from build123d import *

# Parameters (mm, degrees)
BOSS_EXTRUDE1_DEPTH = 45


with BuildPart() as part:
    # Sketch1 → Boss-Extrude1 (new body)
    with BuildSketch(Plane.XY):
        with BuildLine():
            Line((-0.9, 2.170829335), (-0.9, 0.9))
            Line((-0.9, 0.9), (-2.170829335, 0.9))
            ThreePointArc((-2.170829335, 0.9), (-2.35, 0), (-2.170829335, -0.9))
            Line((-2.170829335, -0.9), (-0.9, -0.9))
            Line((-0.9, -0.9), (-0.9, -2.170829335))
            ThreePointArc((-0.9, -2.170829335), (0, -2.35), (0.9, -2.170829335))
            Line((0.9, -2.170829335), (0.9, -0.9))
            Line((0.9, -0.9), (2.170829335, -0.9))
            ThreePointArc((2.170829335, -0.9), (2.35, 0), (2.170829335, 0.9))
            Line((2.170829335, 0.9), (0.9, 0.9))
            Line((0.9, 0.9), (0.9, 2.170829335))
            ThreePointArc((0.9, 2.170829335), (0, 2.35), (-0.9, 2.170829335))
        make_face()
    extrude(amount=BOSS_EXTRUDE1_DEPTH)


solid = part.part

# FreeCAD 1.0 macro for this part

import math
import FreeCAD as App
import Part
import Sketcher
Q = App.Units.Quantity

doc = App.newDocument("Part")
body = doc.addObject("PartDesign::Body", "Body")

sketch1 = body.newObject("Sketcher::SketchObject", "Sketch")
sketch1.AttachmentSupport = (doc.getObject("XY_Plane"), [""])
sketch1.MapMode = "FlatFace"
sketch1.addGeometry(Part.LineSegment(App.Vector(-0.9, 2.2, 0), App.Vector(-0.9, 0.9, 0)), False)
sketch1.addGeometry(Part.LineSegment(App.Vector(-0.9, 0.9, 0), App.Vector(-2.2, 0.9, 0)), False)
sketch1.addGeometry(Part.ArcOfCircle(Part.Circle(App.Vector(0, 0, 0), App.Vector(0, 0, 1), 2.4), math.radians(157), math.radians(203)), False)
sketch1.addGeometry(Part.LineSegment(App.Vector(-2.2, -0.9, 0), App.Vector(-0.9, -0.9, 0)), False)
sketch1.addGeometry(Part.LineSegment(App.Vector(-0.9, -0.9, 0), App.Vector(-0.9, -2.2, 0)), False)
sketch1.addGeometry(Part.ArcOfCircle(Part.Circle(App.Vector(0, 0, 0), App.Vector(0, 0, 1), 2.4), math.radians(-113), math.radians(-67)), False)
sketch1.addGeometry(Part.LineSegment(App.Vector(0.9, -2.2, 0), App.Vector(0.9, -0.9, 0)), False)
sketch1.addGeometry(Part.LineSegment(App.Vector(0.9, -0.9, 0), App.Vector(2.2, -0.9, 0)), False)
sketch1.addGeometry(Part.ArcOfCircle(Part.Circle(App.Vector(0, 0, 0), App.Vector(0, 0, 1), 2.4), math.radians(-23), math.radians(23)), False)
sketch1.addGeometry(Part.LineSegment(App.Vector(2.2, 0.9, 0), App.Vector(0.9, 0.9, 0)), False)
sketch1.addGeometry(Part.LineSegment(App.Vector(0.9, 0.9, 0), App.Vector(0.9, 2.2, 0)), False)
sketch1.addGeometry(Part.ArcOfCircle(Part.Circle(App.Vector(0, 0, 0), App.Vector(0, 0, 1), 2.4), math.radians(67), math.radians(113)), False)
sketch1.addConstraint(Sketcher.Constraint("Coincident", 0, 2, 1, 1))
sketch1.addConstraint(Sketcher.Constraint("Coincident", 1, 2, 2, 1))
sketch1.addConstraint(Sketcher.Constraint("Coincident", 2, 2, 3, 1))
sketch1.addConstraint(Sketcher.Constraint("Coincident", 3, 2, 4, 1))
sketch1.addConstraint(Sketcher.Constraint("Coincident", 4, 2, 5, 1))
sketch1.addConstraint(Sketcher.Constraint("Coincident", 5, 2, 6, 1))
sketch1.addConstraint(Sketcher.Constraint("Coincident", 6, 2, 7, 1))
sketch1.addConstraint(Sketcher.Constraint("Coincident", 7, 2, 8, 1))
sketch1.addConstraint(Sketcher.Constraint("Coincident", 8, 2, 9, 1))
sketch1.addConstraint(Sketcher.Constraint("Coincident", 9, 2, 10, 1))
sketch1.addConstraint(Sketcher.Constraint("Coincident", 10, 2, 11, 1))
sketch1.addConstraint(Sketcher.Constraint("Coincident", 11, 2, 0, 1))
sketch1.addConstraint(Sketcher.Constraint("Vertical", 0))
sketch1.addConstraint(Sketcher.Constraint("Horizontal", 1))
sketch1.addConstraint(Sketcher.Constraint("Horizontal", 3))
sketch1.addConstraint(Sketcher.Constraint("Vertical", 4))
sketch1.addConstraint(Sketcher.Constraint("Vertical", 6))
sketch1.addConstraint(Sketcher.Constraint("Horizontal", 7))
sketch1.addConstraint(Sketcher.Constraint("Horizontal", 9))
sketch1.addConstraint(Sketcher.Constraint("Vertical", 10))
sketch1.addConstraint(Sketcher.Constraint("Coincident", 2, 3, -1, 1))
sketch1.addConstraint(Sketcher.Constraint("Coincident", 5, 3, -1, 1))
sketch1.addConstraint(Sketcher.Constraint("Coincident", 8, 3, -1, 1))
sketch1.addConstraint(Sketcher.Constraint("Coincident", 11, 3, -1, 1))
sketch1.addConstraint(Sketcher.Constraint("Equal", 2, 5))
sketch1.addConstraint(Sketcher.Constraint("Equal", 5, 8))
sketch1.addConstraint(Sketcher.Constraint("Equal", 8, 11))
sketch1.addConstraint(Sketcher.Constraint("Symmetric", 0, 2, 6, 2, -1, 1))
sketch1.addConstraint(Sketcher.Constraint("Symmetric", 3, 2, 9, 2, -1, 1))
sketch1.addConstraint(Sketcher.Constraint("Symmetric", 3, 2, 6, 2, -2))
sketch1.addConstraint(Sketcher.Constraint("Equal", 9, 0))
sketch1.addConstraint(Sketcher.Constraint("Radius", 2, Q("2.35 mm")))
sketch1.addConstraint(Sketcher.Constraint("DistanceX", 0, 2, -1, 1, Q("0.9 mm")))
pad1 = body.newObject("PartDesign::Pad", "Pad")
pad1.Profile = sketch1
pad1.Length = 45

doc.recompute()
